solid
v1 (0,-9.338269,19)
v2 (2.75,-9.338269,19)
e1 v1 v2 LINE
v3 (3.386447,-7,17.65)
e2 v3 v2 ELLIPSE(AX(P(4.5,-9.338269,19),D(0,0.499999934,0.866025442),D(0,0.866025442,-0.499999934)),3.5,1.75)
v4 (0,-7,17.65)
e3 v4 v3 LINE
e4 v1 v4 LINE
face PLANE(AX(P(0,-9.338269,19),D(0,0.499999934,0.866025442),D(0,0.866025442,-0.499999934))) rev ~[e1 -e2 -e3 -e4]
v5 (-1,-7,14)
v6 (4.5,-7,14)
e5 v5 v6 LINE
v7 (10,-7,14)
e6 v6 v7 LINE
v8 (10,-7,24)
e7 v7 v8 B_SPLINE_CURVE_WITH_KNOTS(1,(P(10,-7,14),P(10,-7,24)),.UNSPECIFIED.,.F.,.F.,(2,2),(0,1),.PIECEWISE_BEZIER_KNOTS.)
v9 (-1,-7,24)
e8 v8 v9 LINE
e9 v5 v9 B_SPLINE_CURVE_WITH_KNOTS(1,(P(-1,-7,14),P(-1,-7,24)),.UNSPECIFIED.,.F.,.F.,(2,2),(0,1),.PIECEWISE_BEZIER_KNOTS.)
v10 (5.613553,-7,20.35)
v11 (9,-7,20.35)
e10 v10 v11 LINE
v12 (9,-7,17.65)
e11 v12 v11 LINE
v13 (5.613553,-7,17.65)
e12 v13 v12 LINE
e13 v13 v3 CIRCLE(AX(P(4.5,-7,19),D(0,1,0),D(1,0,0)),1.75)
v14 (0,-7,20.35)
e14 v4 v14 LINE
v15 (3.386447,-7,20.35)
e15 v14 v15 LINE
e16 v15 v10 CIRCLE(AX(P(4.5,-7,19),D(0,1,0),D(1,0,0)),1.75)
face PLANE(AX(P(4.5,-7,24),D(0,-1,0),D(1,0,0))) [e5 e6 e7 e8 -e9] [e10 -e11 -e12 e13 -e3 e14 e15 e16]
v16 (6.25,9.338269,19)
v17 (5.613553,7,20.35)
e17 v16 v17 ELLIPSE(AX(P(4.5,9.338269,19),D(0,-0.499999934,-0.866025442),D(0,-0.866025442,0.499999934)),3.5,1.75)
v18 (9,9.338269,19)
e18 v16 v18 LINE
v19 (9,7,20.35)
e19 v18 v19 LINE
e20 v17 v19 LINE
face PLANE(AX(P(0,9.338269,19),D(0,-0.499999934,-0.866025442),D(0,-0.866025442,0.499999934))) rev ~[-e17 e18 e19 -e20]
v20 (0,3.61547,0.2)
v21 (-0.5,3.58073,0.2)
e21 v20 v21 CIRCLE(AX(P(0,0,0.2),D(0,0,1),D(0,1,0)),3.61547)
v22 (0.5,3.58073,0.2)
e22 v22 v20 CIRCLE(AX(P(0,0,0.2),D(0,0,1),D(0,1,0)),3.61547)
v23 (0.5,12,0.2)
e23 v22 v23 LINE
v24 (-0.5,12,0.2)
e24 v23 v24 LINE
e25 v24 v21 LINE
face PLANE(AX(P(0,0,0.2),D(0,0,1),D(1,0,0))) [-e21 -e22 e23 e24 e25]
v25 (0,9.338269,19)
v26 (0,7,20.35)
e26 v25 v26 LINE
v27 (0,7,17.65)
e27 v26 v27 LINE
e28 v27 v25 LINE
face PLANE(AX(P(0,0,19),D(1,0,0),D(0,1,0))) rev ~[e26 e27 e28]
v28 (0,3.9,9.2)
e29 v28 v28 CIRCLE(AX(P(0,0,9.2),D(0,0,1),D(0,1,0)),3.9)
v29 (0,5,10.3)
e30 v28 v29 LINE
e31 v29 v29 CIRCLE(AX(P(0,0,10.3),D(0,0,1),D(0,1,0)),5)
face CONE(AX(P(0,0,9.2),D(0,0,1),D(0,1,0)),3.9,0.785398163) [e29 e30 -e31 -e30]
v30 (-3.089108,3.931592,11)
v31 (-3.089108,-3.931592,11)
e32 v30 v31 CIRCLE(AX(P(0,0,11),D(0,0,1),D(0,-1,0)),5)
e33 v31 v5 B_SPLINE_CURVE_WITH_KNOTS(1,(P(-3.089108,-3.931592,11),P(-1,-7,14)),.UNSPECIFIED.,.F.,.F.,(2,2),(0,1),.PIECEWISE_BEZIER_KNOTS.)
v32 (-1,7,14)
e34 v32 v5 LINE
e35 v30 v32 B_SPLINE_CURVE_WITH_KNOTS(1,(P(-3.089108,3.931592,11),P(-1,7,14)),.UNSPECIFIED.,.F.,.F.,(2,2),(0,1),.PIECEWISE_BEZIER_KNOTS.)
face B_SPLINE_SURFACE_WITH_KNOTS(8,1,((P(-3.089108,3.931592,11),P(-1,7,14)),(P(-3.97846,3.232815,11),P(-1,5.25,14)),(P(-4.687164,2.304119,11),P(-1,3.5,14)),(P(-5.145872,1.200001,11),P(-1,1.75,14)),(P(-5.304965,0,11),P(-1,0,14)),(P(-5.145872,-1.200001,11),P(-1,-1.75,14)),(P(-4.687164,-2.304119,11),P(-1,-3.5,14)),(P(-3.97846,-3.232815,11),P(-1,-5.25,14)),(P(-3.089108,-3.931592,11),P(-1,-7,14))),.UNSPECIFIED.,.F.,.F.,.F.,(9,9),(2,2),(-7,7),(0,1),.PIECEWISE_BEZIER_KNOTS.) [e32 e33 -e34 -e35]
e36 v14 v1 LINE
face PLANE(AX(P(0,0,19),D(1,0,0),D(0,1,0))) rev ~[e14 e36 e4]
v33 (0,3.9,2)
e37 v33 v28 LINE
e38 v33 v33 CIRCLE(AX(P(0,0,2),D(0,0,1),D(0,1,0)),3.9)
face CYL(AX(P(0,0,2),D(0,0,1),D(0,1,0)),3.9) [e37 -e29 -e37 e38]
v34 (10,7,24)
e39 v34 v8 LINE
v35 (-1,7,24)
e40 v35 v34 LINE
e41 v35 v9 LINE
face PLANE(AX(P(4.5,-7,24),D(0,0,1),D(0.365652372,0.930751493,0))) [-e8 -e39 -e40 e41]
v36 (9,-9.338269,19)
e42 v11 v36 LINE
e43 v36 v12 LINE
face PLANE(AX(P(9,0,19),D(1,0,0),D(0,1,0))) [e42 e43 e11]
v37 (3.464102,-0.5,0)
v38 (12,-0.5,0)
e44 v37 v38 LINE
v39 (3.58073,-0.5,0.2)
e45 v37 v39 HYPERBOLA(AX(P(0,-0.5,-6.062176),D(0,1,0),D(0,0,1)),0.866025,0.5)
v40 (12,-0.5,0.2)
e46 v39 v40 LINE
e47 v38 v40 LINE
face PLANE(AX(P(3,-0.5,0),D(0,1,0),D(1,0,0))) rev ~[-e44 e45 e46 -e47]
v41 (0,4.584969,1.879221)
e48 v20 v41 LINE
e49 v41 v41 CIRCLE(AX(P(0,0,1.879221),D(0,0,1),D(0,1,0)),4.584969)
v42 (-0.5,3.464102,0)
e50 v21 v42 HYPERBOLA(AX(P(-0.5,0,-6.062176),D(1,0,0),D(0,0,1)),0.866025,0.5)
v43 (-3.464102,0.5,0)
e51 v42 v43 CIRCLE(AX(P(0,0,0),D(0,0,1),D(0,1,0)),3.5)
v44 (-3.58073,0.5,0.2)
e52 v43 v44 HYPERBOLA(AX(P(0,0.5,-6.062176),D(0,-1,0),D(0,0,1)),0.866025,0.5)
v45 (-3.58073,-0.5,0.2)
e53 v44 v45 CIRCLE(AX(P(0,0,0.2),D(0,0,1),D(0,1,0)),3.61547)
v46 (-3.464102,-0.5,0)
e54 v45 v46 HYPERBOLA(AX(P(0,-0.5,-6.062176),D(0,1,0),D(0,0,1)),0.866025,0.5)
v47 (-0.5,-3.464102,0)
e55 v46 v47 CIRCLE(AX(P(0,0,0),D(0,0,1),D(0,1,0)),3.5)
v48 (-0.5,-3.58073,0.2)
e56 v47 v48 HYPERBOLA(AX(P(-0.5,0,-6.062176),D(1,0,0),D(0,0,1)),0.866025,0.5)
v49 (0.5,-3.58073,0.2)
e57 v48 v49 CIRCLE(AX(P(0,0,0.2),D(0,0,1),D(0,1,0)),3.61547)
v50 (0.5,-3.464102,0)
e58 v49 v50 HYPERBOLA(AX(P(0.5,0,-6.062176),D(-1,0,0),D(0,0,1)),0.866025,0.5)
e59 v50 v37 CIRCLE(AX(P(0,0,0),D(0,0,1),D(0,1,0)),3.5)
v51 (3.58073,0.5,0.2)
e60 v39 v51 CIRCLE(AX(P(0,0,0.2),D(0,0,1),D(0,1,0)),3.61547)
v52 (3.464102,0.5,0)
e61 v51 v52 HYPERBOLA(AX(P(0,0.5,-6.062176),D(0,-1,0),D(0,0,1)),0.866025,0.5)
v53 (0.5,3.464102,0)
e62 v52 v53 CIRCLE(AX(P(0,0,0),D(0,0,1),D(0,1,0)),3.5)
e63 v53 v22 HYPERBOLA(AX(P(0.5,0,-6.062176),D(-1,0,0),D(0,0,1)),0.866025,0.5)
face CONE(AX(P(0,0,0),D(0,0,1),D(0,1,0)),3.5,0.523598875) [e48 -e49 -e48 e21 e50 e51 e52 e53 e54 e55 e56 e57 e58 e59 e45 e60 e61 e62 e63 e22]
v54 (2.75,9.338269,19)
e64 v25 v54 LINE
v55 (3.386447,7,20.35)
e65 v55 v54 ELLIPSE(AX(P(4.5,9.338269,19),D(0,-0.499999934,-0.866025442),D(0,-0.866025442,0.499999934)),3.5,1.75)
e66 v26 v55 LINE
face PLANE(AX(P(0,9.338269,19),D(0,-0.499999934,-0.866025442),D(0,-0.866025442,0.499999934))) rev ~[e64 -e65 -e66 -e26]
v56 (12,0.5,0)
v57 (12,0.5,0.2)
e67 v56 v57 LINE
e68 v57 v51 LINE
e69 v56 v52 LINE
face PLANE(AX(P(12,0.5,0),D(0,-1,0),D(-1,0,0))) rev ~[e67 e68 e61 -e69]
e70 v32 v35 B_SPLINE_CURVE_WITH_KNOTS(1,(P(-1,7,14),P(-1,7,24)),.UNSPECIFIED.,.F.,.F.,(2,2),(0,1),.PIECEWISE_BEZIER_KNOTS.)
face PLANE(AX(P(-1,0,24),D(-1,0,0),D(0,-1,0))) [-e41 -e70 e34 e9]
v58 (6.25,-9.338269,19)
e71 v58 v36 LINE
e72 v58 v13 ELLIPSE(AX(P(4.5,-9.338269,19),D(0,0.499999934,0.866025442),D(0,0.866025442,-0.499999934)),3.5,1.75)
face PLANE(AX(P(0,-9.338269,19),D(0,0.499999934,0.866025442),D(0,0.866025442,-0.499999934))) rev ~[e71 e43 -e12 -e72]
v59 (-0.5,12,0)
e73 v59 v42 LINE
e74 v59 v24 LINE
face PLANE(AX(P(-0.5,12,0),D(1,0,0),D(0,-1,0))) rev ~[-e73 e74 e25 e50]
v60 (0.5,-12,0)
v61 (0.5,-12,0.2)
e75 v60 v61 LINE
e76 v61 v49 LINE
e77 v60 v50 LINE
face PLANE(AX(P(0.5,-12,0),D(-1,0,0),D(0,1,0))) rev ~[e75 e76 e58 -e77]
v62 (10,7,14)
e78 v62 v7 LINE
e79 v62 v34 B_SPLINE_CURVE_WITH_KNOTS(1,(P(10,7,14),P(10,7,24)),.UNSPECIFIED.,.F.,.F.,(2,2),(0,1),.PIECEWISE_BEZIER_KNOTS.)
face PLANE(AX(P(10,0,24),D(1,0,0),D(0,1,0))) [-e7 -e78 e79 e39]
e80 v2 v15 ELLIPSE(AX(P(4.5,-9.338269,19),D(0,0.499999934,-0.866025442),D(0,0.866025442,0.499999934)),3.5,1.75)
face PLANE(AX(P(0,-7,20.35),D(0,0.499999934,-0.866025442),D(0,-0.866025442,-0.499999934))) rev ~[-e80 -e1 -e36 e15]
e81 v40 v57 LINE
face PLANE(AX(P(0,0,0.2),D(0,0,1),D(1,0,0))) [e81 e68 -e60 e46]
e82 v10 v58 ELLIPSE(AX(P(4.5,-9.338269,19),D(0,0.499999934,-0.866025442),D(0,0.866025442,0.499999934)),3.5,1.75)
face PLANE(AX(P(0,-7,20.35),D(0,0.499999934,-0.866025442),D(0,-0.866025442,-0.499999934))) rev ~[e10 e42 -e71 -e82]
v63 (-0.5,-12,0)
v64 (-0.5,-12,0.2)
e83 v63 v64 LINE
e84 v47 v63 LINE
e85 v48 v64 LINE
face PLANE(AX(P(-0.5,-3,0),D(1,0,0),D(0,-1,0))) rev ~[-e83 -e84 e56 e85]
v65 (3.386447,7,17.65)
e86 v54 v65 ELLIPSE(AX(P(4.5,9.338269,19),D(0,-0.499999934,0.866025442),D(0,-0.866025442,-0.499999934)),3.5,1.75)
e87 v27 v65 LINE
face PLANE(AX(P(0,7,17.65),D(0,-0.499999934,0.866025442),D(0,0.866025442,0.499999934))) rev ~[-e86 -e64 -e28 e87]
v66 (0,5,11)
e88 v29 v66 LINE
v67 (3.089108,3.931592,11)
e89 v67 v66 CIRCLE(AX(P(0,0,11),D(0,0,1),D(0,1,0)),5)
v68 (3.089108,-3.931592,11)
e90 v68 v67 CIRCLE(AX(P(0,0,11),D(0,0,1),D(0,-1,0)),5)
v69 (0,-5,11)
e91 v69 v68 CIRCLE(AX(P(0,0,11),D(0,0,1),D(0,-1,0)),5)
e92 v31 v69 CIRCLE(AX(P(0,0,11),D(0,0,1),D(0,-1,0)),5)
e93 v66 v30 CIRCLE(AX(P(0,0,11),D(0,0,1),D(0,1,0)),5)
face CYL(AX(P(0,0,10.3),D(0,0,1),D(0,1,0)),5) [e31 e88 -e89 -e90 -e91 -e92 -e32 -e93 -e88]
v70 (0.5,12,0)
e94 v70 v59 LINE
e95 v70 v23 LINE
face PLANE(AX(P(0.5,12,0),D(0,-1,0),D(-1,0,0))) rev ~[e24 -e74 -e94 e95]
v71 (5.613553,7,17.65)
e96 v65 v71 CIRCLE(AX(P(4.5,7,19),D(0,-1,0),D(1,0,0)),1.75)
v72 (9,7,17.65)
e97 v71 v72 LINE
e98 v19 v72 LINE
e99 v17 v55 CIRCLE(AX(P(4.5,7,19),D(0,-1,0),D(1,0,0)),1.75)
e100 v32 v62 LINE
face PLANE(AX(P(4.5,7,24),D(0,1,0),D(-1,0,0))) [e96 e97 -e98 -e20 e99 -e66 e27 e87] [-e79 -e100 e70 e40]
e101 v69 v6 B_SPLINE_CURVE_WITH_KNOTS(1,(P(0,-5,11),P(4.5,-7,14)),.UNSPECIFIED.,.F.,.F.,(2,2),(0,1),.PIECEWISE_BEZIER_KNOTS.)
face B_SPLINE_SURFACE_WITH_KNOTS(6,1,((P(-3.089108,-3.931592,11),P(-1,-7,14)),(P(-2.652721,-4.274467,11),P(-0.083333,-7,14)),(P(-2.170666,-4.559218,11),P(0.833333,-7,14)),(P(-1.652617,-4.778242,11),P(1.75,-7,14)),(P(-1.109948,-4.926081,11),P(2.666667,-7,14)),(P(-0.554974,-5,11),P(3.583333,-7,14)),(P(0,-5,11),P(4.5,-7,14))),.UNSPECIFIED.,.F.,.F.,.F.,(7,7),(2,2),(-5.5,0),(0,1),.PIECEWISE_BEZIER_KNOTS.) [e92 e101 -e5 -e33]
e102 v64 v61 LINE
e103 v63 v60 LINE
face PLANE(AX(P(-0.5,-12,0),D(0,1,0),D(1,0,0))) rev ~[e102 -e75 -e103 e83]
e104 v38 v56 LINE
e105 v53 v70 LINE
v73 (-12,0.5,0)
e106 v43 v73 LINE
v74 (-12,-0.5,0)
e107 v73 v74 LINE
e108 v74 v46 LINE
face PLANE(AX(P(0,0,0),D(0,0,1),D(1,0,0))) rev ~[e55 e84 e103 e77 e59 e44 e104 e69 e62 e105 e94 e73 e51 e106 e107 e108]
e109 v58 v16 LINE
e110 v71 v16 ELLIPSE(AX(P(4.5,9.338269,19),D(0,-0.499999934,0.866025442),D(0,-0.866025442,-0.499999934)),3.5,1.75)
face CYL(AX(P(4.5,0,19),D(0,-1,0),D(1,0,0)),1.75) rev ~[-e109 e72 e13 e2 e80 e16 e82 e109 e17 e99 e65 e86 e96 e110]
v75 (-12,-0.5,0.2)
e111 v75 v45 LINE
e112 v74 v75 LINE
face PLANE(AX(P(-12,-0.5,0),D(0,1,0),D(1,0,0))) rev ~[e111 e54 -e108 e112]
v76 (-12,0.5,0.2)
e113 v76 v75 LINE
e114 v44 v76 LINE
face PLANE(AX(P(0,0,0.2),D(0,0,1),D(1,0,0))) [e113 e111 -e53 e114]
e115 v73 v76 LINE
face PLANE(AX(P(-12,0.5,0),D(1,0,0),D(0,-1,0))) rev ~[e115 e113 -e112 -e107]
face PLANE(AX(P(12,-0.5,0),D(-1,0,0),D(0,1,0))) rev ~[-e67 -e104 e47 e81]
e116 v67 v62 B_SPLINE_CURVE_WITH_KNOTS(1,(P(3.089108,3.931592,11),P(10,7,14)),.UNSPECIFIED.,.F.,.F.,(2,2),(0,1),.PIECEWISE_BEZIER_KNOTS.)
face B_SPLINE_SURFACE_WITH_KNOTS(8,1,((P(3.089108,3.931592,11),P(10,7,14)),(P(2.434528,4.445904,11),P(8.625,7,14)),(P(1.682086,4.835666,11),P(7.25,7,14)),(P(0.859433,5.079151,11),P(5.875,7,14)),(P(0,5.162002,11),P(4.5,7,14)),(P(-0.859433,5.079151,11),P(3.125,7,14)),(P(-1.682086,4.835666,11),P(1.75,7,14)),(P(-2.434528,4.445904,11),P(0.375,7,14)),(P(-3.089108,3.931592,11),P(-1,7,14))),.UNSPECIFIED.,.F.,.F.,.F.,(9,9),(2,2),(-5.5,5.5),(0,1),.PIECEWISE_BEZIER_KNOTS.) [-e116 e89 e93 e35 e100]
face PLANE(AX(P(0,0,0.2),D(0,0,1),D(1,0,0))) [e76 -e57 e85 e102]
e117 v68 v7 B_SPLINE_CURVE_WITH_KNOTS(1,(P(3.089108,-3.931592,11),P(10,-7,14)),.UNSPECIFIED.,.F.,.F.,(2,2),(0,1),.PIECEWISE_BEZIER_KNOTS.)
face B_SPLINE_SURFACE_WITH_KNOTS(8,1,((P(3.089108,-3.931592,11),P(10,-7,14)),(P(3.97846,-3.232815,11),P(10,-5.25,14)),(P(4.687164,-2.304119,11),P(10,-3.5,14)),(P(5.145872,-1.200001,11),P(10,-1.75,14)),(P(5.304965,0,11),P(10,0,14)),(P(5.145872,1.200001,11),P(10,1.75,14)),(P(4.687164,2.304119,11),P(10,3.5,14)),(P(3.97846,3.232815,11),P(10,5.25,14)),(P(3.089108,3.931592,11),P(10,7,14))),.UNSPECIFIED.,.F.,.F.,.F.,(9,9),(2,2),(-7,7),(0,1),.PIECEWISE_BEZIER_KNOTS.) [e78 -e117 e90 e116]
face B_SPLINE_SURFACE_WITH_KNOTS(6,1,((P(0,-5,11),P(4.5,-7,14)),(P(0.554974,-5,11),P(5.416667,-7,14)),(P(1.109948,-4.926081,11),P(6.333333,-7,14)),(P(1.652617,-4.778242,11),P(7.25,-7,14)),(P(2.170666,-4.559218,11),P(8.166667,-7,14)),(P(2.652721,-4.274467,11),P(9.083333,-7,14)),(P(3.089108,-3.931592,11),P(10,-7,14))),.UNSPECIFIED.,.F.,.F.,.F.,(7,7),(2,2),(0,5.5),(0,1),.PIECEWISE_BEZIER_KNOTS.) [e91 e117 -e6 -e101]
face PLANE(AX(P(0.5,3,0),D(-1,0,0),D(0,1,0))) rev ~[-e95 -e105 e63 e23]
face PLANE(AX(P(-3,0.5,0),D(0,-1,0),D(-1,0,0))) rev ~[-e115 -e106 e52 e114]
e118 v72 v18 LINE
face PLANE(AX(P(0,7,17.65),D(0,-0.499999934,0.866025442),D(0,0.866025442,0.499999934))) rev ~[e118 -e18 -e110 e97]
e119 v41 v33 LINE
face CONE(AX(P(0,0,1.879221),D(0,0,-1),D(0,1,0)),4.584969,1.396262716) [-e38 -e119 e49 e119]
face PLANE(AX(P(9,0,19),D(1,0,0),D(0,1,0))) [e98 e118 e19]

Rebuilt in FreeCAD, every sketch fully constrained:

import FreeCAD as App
import Part
import Sketcher
Q = App.Units.Quantity


def add_polygon(sketch, points):
    """Adds a closed chain of lines whose ends are joined by coincident constraints."""
    first, n = sketch.GeometryCount, len(points)
    for a, b in zip(points, points[1:] + points[:1]):
        sketch.addGeometry(Part.LineSegment(App.Vector(*a, 0), App.Vector(*b, 0)), False)
    for i in range(n):
        sketch.addConstraint(Sketcher.Constraint("Coincident", first + i, 2, first + (i + 1) % n, 1))

doc = App.newDocument("Part")
body = doc.addObject("PartDesign::Body", "Body")

# Sketch on YZ plane
sketch1 = doc.addObject("Sketcher::SketchObject", "Sketch")
body.addObject(sketch1)
sketch1.AttachmentSupport = (doc.YZ_Plane, [""])
sketch1.MapMode = "FlatFace"
add_polygon(sketch1, [(0, 0), (3.5, 0), (4.6, 1.9), (3.9, 2), (3.9, 9.2), (5, 10.3), (5, 11), (0, 11)])  # lines 0-7
sketch1.addConstraint([
    Sketcher.Constraint("Horizontal", 0),
    Sketcher.Constraint("Vertical", 3),
    Sketcher.Constraint("Vertical", 5),
    Sketcher.Constraint("Horizontal", 6),
    Sketcher.Constraint("Vertical", 7),
    Sketcher.Constraint("Coincident", 7, 2, -1, 1),
    Sketcher.Constraint("DistanceX", 6, 2, 6, 1, Q("5 mm")),
    Sketcher.Constraint("DistanceY", 7, 2, 7, 1, Q("11 mm")),
    Sketcher.Constraint("Angle", 1, Q("59.999994 deg")),
    Sketcher.Constraint("Angle", 4, Q("45 deg")),
    Sketcher.Constraint("DistanceX", 0, 1, 0, 2, Q("3.5 mm")),
    Sketcher.Constraint("DistanceY", 3, 1, 3, 2, Q("7.2 mm")),
    Sketcher.Constraint("DistanceY", 5, 1, 5, 2, Q("0.7 mm")),
    Sketcher.Constraint("DistanceY", -1, 1, 2, 2, Q("2 mm")),
    Sketcher.Constraint("DistanceX", -1, 1, 1, 2, Q("4.584969 mm")),
])
revolution = doc.addObject("PartDesign::Revolution", "Revolution")
body.addObject(revolution)
revolution.Profile = sketch1
revolution.ReferenceAxis = (sketch1, ["V_Axis"])
revolution.Angle = 360

# Sketch on XY plane
sketch2 = doc.addObject("Sketcher::SketchObject", "Sketch001")
body.addObject(sketch2)
sketch2.AttachmentSupport = (doc.XY_Plane, [""])
sketch2.MapMode = "FlatFace"
sketch2.AttachmentOffset = App.Placement(App.Vector(0, 0, 11), App.Rotation())
sketch2.addGeometry(Part.Circle(App.Vector(0, 0, 0), App.Vector(0, 0, 1), 5), False)
sketch2.addConstraint([
    Sketcher.Constraint("Coincident", 0, 3, -1, 1),
    Sketcher.Constraint("Diameter", 0, Q("10 mm")),
])

# Sketch on XY plane
sketch3 = doc.addObject("Sketcher::SketchObject", "Sketch002")
body.addObject(sketch3)
sketch3.AttachmentSupport = (doc.XY_Plane, [""])
sketch3.MapMode = "FlatFace"
sketch3.AttachmentOffset = App.Placement(App.Vector(0, 0, 14), App.Rotation())
add_polygon(sketch3, [(10, 7), (-1, 7), (-1, -7), (10, -7)])  # lines 0-3
sketch3.addConstraint([
    Sketcher.Constraint("Horizontal", 0),
    Sketcher.Constraint("Vertical", 1),
    Sketcher.Constraint("Horizontal", 2),
    Sketcher.Constraint("Vertical", 3),
    Sketcher.Constraint("DistanceX", 0, 2, 0, 1, Q("11 mm")),
    Sketcher.Constraint("DistanceY", 1, 2, 1, 1, Q("14 mm")),
    Sketcher.Constraint("DistanceX", 0, 2, -1, 1, Q("1 mm")),
    Sketcher.Constraint("DistanceY", -1, 1, 0, 2, Q("7 mm")),
])

# Sketch on XY plane
sketch4 = doc.addObject("Sketcher::SketchObject", "Sketch003")
body.addObject(sketch4)
sketch4.AttachmentSupport = (doc.XY_Plane, [""])
sketch4.MapMode = "FlatFace"
sketch4.AttachmentOffset = App.Placement(App.Vector(0, 0, 24), App.Rotation())
add_polygon(sketch4, [(10, 7), (-1, 7), (-1, -7), (10, -7)])  # lines 0-3
sketch4.addConstraint([
    Sketcher.Constraint("Horizontal", 0),
    Sketcher.Constraint("Vertical", 1),
    Sketcher.Constraint("Horizontal", 2),
    Sketcher.Constraint("Vertical", 3),
    Sketcher.Constraint("DistanceX", 0, 2, 0, 1, Q("11 mm")),
    Sketcher.Constraint("DistanceY", 1, 2, 1, 1, Q("14 mm")),
    Sketcher.Constraint("DistanceX", 0, 2, -1, 1, Q("1 mm")),
    Sketcher.Constraint("DistanceY", -1, 1, 0, 2, Q("7 mm")),
])

additiveloft = doc.addObject("PartDesign::AdditiveLoft", "AdditiveLoft")
body.addObject(additiveloft)
additiveloft.Profile = sketch2
additiveloft.Sections = [sketch3, sketch4]
additiveloft.Ruled = True

# Sketch on YZ plane
sketch5 = doc.addObject("Sketcher::SketchObject", "Sketch004")
body.addObject(sketch5)
sketch5.AttachmentSupport = (doc.YZ_Plane, [""])
sketch5.MapMode = "FlatFace"
add_polygon(sketch5, [(-7, 20.4), (-9.3, 19), (-7, 17.6), (7, 17.6), (9.3, 19), (7, 20.4)])  # lines 0-5
sketch5.addConstraint([
    Sketcher.Constraint("Horizontal", 2),
    Sketcher.Constraint("Horizontal", 5),
    Sketcher.Constraint("Symmetric", 0, 2, 3, 2, -2),
    Sketcher.Constraint("Parallel", 0, 3),
    Sketcher.Constraint("Parallel", 1, 4),
    Sketcher.Constraint("Vertical", 2, 2, 4, 2),
    Sketcher.Constraint("Vertical", 1, 2, 5, 2),
    Sketcher.Constraint("DistanceX", 2, 1, 2, 2, Q("14 mm")),
    Sketcher.Constraint("Angle", 0, Q("-150.000004 deg")),
    Sketcher.Constraint("DistanceY", -1, 1, 0, 2, Q("19 mm")),
    Sketcher.Constraint("Distance", 0, Q("2.7 mm")),
])
pad1 = doc.addObject("PartDesign::Pad", "Pad")
body.addObject(pad1)
pad1.Profile = sketch5
pad1.Length = 9

# Sketch on XZ plane
sketch6 = doc.addObject("Sketcher::SketchObject", "Sketch005")
body.addObject(sketch6)
sketch6.AttachmentSupport = (doc.XZ_Plane, [""])
sketch6.MapMode = "FlatFace"
sketch6.addGeometry(Part.Circle(App.Vector(4.5, 19, 0), App.Vector(0, 0, 1), 1.8), False)
sketch6.addConstraint([
    Sketcher.Constraint("Diameter", 0, Q("3.5 mm")),
    Sketcher.Constraint("DistanceY", -1, 1, 0, 3, Q("19 mm")),
    Sketcher.Constraint("DistanceX", -1, 1, 0, 3, Q("4.5 mm")),
])
pocket1 = doc.addObject("PartDesign::Pocket", "Pocket")
body.addObject(pocket1)
pocket1.Profile = sketch6
pocket1.Type = "ThroughAll"
pocket1.Midplane = True

# Sketch on XY plane
sketch7 = doc.addObject("Sketcher::SketchObject", "Sketch006")
body.addObject(sketch7)
sketch7.AttachmentSupport = (doc.XY_Plane, [""])
sketch7.MapMode = "FlatFace"
add_polygon(sketch7, [(12, 0.5), (3, 0.5), (0.5, 3), (0.5, 12), (-0.5, 12), (-0.5, 3), (-3, 0.5), (-12, 0.5), (-12, -0.5), (-3, -0.5), (-0.5, -3), (-0.5, -12), (0.5, -12), (0.5, -3), (3, -0.5), (12, -0.5)])  # lines 0-15
sketch7.addConstraint([
    Sketcher.Constraint("Horizontal", 0),
    Sketcher.Constraint("Vertical", 2),
    Sketcher.Constraint("Horizontal", 3),
    Sketcher.Constraint("Vertical", 4),
    Sketcher.Constraint("Horizontal", 6),
    Sketcher.Constraint("Vertical", 7),
    Sketcher.Constraint("Horizontal", 8),
    Sketcher.Constraint("Vertical", 10),
    Sketcher.Constraint("Horizontal", 11),
    Sketcher.Constraint("Vertical", 12),
    Sketcher.Constraint("Horizontal", 14),
    Sketcher.Constraint("Vertical", 15),
    Sketcher.Constraint("Symmetric", 0, 2, 8, 2, -1, 1),
    Sketcher.Constraint("Symmetric", 1, 2, 9, 2, -1, 1),
    Sketcher.Constraint("Symmetric", 3, 2, 11, 2, -1, 1),
    Sketcher.Constraint("Symmetric", 5, 2, 13, 2, -1, 1),
    Sketcher.Constraint("Symmetric", 1, 2, 4, 2, -2),
    Sketcher.Constraint("Symmetric", 0, 2, 5, 2, -2),
    Sketcher.Constraint("Perpendicular", 1, 5),
    Sketcher.Constraint("Perpendicular", 9, 13),
    Sketcher.Constraint("Equal", 0, 6),
    Sketcher.Constraint("Equal", 14, 2),
    Sketcher.Constraint("Equal", 11, 7),
    Sketcher.Constraint("DistanceX", 0, 2, 0, 1, Q("9 mm")),
    Sketcher.Constraint("DistanceX", 3, 2, 3, 1, Q("1 mm")),
    Sketcher.Constraint("DistanceX", -1, 1, 0, 2, Q("3 mm")),
])
pad2 = doc.addObject("PartDesign::Pad", "Pad001")
body.addObject(pad2)
pad2.Profile = sketch7
pad2.Length = 0.2

doc.recompute()
